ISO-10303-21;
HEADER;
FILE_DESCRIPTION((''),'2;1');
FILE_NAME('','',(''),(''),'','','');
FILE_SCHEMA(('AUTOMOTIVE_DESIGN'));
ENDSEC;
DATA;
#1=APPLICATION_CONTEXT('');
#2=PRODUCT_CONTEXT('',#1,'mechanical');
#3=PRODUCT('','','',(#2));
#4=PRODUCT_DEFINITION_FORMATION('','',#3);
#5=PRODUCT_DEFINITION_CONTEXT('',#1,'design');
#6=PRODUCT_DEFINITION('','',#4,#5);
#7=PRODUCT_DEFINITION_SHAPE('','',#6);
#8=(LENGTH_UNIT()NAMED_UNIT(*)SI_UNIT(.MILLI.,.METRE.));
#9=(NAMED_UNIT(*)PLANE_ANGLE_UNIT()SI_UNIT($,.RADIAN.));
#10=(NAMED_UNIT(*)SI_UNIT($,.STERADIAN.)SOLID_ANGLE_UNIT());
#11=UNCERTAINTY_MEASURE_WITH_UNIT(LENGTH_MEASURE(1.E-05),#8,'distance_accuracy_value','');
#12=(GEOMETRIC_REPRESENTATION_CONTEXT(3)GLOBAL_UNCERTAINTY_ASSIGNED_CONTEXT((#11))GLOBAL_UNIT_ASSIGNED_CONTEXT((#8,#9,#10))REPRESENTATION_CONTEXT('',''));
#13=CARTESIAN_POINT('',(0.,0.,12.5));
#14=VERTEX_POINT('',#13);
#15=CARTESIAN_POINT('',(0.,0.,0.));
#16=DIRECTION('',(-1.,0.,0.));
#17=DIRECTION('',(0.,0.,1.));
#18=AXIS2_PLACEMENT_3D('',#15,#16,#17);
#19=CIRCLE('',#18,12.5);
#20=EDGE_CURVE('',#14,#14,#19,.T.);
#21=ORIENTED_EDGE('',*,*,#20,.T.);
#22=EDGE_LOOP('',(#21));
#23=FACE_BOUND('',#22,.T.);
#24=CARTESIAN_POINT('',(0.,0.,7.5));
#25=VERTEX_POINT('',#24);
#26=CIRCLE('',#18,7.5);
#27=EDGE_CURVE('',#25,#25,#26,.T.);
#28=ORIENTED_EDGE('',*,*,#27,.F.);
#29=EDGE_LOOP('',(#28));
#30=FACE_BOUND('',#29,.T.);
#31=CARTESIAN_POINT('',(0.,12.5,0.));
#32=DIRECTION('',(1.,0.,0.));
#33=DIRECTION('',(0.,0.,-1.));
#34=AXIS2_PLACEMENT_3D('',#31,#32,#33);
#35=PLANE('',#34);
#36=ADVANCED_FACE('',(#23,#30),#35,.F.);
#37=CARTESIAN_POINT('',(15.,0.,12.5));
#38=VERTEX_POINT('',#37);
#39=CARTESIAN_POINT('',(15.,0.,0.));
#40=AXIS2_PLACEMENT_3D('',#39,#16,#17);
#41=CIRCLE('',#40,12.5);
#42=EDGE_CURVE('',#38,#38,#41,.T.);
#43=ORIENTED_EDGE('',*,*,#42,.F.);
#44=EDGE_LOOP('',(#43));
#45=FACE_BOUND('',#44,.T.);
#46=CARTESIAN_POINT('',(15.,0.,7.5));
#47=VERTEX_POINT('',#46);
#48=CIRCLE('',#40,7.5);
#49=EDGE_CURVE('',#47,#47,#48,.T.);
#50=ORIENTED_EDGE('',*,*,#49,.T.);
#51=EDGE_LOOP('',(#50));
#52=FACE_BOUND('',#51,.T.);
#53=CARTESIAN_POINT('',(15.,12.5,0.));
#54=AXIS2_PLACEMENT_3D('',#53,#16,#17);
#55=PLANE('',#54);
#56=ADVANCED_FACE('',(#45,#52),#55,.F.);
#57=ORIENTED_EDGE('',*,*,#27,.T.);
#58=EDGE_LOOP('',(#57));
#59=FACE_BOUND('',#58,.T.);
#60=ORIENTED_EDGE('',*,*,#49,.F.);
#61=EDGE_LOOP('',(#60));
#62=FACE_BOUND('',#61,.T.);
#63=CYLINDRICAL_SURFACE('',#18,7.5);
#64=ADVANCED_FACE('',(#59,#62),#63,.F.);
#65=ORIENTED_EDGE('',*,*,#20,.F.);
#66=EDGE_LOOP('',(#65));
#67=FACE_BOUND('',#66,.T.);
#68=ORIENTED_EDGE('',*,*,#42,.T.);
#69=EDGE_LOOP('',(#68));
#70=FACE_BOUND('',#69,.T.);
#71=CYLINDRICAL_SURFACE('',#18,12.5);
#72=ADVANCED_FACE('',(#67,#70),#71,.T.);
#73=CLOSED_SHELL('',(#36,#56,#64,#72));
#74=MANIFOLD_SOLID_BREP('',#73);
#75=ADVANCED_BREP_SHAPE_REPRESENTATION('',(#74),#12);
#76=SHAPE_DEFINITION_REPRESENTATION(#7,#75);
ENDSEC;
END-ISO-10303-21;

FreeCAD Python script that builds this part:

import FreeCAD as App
import Part
import Sketcher

V = App.Vector


def add_polygon(sketch, points):
    """Adds a closed chain of lines whose ends are joined by coincident constraints."""
    first, n = sketch.GeometryCount, len(points)
    for a, b in zip(points, points[1:] + points[:1]):
        sketch.addGeometry(Part.LineSegment(App.Vector(*a, 0), App.Vector(*b, 0)), False)
    for i in range(n):
        sketch.addConstraint(Sketcher.Constraint("Coincident", first + i, 2, first + (i + 1) % n, 1))

doc = App.newDocument("Part")
body = doc.addObject("PartDesign::Body", "Body")

# Sketch on XY plane
sketch1 = body.newObject("Sketcher::SketchObject", "Sketch")
sketch1.AttachmentSupport = (doc.getObject("XY_Plane"), [""])
sketch1.MapMode = "FlatFace"
add_polygon(sketch1, [(0, 12), (0, 8), (15, 8), (15, 12)])  # lines 0-3
sketch1.addConstraint(Sketcher.Constraint("Vertical", 0))
sketch1.addConstraint(Sketcher.Constraint("Horizontal", 1))
sketch1.addConstraint(Sketcher.Constraint("Vertical", 2))
sketch1.addConstraint(Sketcher.Constraint("Horizontal", 3))
sketch1.addConstraint(Sketcher.Constraint("PointOnObject", 0, 2, -2))
sketch1.addConstraint(Sketcher.Constraint("DistanceX", 1, 1, 1, 2, 15.0))
sketch1.addConstraint(Sketcher.Constraint("DistanceY", 0, 2, 0, 1, 5.0))
sketch1.addConstraint(Sketcher.Constraint("DistanceY", -1, 1, 0, 2, 7.5))
revolution = body.newObject("PartDesign::Revolution", "Revolution")
revolution.Profile = sketch1
revolution.ReferenceAxis = (sketch1, ["H_Axis"])
revolution.Angle = 360

doc.recompute()
